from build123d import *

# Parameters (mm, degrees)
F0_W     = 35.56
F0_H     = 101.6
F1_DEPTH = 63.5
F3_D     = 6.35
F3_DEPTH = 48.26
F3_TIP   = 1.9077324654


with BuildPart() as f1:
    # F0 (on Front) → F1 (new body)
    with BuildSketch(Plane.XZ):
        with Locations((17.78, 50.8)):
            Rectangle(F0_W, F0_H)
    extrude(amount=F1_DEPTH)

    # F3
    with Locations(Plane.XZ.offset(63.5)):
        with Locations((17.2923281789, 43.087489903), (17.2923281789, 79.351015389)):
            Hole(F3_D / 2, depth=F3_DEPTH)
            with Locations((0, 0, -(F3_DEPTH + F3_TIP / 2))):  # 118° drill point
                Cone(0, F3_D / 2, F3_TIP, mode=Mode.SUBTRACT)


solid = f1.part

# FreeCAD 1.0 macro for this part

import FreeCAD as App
import Part
import Sketcher
from FreeCAD import Vector
Q = App.Units.Quantity


def add_polygon(sketch, points):
    """Adds a closed chain of lines whose ends are joined by coincident constraints."""
    first, n = sketch.GeometryCount, len(points)
    for a, b in zip(points, points[1:] + points[:1]):
        sketch.addGeometry(Part.LineSegment(App.Vector(*a, 0), App.Vector(*b, 0)), False)
    for i in range(n):
        sketch.addConstraint(Sketcher.Constraint("Coincident", first + i, 2, first + (i + 1) % n, 1))

doc = App.newDocument("Part")
params = doc.addObject("Spreadsheet::Sheet", "Params")
for row, (alias, value) in enumerate([
    ("sketch1_height", "4 in"),
    ("sketch1_width", "1.4 in"),
    ("pad1_length", "2.5 in"),
    ("sketch2_diameter", "0.25 in"),
    ("hole_diameter", "0.25 in"),
    ("hole_depth", "1.9 in"),
], start=1):
    params.set(f"A{row}", alias)
    params.set(f"B{row}", "=" + value)
    params.setAlias(f"B{row}", alias)

body = doc.addObject("PartDesign::Body", "Body")

sketch1 = doc.addObject("Sketcher::SketchObject", "Sketch")
body.addObject(sketch1)
sketch1.AttachmentSupport = (doc.XZ_Plane, [""])
sketch1.MapMode = "FlatFace"
add_polygon(sketch1, [(0, 101.6), (0, 0), (35.56, 0), (35.56, 101.6)])
sketch1.addConstraint([
    Sketcher.Constraint("Vertical", 0),
    Sketcher.Constraint("Horizontal", 1),
    Sketcher.Constraint("Vertical", 2),
    Sketcher.Constraint("Horizontal", 3),
    Sketcher.Constraint("Coincident", 0, 2, -1, 1),
    Sketcher.Constraint("DistanceY", 0, 2, 0, 1, Q("4 in")),
    Sketcher.Constraint("DistanceX", 1, 1, 1, 2, Q("1.4 in")),
])
sketch1.setExpression("Constraints[9]", "Params.sketch1_height")
sketch1.setExpression("Constraints[10]", "Params.sketch1_width")
pad1 = doc.addObject("PartDesign::Pad", "Pad")
body.addObject(pad1)
pad1.Profile = sketch1
pad1.setExpression("Length", "Params.pad1_length")

sketch2 = doc.addObject("Sketcher::SketchObject", "Sketch001")
body.addObject(sketch2)
sketch2.AttachmentSupport = (doc.XZ_Plane, [""])
sketch2.MapMode = "FlatFace"
sketch2.AttachmentOffset = App.Placement(Vector(0, 0, 2.5 * 25.4), App.Rotation())
sketch2.addGeometry([
    Part.Circle(Vector(17.292328, 43.08749, 0), Vector(0, 0, 1), 3.175),
    Part.Circle(Vector(17.292328, 79.351015, 0), Vector(0, 0, 1), 3.175),
], False)
sketch2.addConstraint([
    Sketcher.Constraint("Equal", 0, 1),
    Sketcher.Constraint("Vertical", 0, 3, 1, 3),
    Sketcher.Constraint("Diameter", 0, Q("0.25 in")),
    Sketcher.Constraint("DistanceX", -1, 1, 0, 3, Q("17.292328 mm")),
    Sketcher.Constraint("DistanceY", -1, 1, 0, 3, Q("43.08749 mm")),
    Sketcher.Constraint("DistanceY", -1, 1, 1, 3, Q("79.351015 mm")),
])
sketch2.setExpression("Constraints[2]", "Params.sketch2_diameter")
doc.recompute()
hole = doc.addObject("PartDesign::Hole", "Hole")
body.addObject(hole)
hole.Profile = sketch2
hole.ThreadType = "None"
hole.setExpression("Diameter", "Params.hole_diameter")
hole.DepthType = "Dimension"
hole.setExpression("Depth", "Params.hole_depth")
hole.DrillPoint = "Angled"
hole.DrillPointAngle = 118

doc.recompute()
